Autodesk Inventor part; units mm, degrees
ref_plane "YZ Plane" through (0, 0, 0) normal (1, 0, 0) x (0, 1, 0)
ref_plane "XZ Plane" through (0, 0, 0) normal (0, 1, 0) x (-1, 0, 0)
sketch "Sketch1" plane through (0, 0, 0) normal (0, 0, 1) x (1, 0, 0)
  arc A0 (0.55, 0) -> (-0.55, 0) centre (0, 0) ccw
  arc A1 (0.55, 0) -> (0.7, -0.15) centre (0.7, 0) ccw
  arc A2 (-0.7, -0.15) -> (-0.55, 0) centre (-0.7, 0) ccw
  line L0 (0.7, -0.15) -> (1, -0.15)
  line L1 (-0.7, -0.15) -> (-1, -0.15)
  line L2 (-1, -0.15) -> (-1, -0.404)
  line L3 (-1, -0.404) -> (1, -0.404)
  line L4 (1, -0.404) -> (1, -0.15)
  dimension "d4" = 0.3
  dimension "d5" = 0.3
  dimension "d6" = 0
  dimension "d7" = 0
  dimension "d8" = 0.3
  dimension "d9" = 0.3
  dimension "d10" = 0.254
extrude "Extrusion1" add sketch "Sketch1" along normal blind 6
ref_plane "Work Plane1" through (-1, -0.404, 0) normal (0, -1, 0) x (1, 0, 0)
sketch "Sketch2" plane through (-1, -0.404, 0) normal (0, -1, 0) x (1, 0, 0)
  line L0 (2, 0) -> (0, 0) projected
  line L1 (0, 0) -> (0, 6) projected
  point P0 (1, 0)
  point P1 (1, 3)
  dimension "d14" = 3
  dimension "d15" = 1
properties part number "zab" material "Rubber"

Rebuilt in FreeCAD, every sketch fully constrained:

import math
import FreeCAD as App
import Part
import Sketcher

doc = App.newDocument("Part")
body = doc.addObject("PartDesign::Body", "Body")

sketch1 = body.newObject("Sketcher::SketchObject", "Sketch")
sketch1.AttachmentSupport = (doc.getObject("XY_Plane"), [""])
sketch1.MapMode = "FlatFace"
sketch1.addGeometry(Part.ArcOfCircle(Part.Circle(App.Vector(0.7, 0, 0), App.Vector(0, 0, 1), 0.15), math.radians(180), math.radians(270)), False)
sketch1.addGeometry(Part.ArcOfCircle(Part.Circle(App.Vector(0, 0, 0), App.Vector(0, 0, 1), 0.55), math.radians(0), math.radians(180)), False)
sketch1.addGeometry(Part.ArcOfCircle(Part.Circle(App.Vector(-0.7, 0, 0), App.Vector(0, 0, 1), 0.15), math.radians(-90), math.radians(0)), False)
sketch1.addGeometry(Part.LineSegment(App.Vector(-0.7, -0.15, 0), App.Vector(-1, -0.15, 0)), False)
sketch1.addGeometry(Part.LineSegment(App.Vector(-1, -0.15, 0), App.Vector(-1, -0.404, 0)), False)
sketch1.addGeometry(Part.LineSegment(App.Vector(-1, -0.404, 0), App.Vector(1, -0.404, 0)), False)
sketch1.addGeometry(Part.LineSegment(App.Vector(1, -0.404, 0), App.Vector(1, -0.15, 0)), False)
sketch1.addGeometry(Part.LineSegment(App.Vector(1, -0.15, 0), App.Vector(0.7, -0.15, 0)), False)
sketch1.addConstraint(Sketcher.Constraint("Tangent", 0, 1, 1, 1))
sketch1.addConstraint(Sketcher.Constraint("Tangent", 1, 2, 2, 2))
sketch1.addConstraint(Sketcher.Constraint("Tangent", 2, 1, 3, 1))
sketch1.addConstraint(Sketcher.Constraint("Coincident", 3, 2, 4, 1))
sketch1.addConstraint(Sketcher.Constraint("Coincident", 4, 2, 5, 1))
sketch1.addConstraint(Sketcher.Constraint("Coincident", 5, 2, 6, 1))
sketch1.addConstraint(Sketcher.Constraint("Coincident", 6, 2, 7, 1))
sketch1.addConstraint(Sketcher.Constraint("Tangent", 7, 2, 0, 2))
sketch1.addConstraint(Sketcher.Constraint("Horizontal", 3))
sketch1.addConstraint(Sketcher.Constraint("Vertical", 4))
sketch1.addConstraint(Sketcher.Constraint("Horizontal", 5))
sketch1.addConstraint(Sketcher.Constraint("Vertical", 6))
sketch1.addConstraint(Sketcher.Constraint("Horizontal", 7))
sketch1.addConstraint(Sketcher.Constraint("Coincident", 1, 3, -1, 1))
sketch1.addConstraint(Sketcher.Constraint("Equal", 0, 2))
sketch1.addConstraint(Sketcher.Constraint("Symmetric", 3, 2, 6, 2, -2))
sketch1.addConstraint(Sketcher.Constraint("PointOnObject", 0, 3, -1))
sketch1.addConstraint(Sketcher.Constraint("Radius", 0, 0.15))
sketch1.addConstraint(Sketcher.Constraint("DistanceX", 3, 2, 3, 1, 0.3))
sketch1.addConstraint(Sketcher.Constraint("DistanceX", 5, 1, 5, 2, 2.0))
sketch1.addConstraint(Sketcher.Constraint("DistanceY", 4, 2, 4, 1, 0.254))
pad1 = body.newObject("PartDesign::Pad", "Pad")
pad1.Profile = sketch1
pad1.Length = 6

doc.recompute()
